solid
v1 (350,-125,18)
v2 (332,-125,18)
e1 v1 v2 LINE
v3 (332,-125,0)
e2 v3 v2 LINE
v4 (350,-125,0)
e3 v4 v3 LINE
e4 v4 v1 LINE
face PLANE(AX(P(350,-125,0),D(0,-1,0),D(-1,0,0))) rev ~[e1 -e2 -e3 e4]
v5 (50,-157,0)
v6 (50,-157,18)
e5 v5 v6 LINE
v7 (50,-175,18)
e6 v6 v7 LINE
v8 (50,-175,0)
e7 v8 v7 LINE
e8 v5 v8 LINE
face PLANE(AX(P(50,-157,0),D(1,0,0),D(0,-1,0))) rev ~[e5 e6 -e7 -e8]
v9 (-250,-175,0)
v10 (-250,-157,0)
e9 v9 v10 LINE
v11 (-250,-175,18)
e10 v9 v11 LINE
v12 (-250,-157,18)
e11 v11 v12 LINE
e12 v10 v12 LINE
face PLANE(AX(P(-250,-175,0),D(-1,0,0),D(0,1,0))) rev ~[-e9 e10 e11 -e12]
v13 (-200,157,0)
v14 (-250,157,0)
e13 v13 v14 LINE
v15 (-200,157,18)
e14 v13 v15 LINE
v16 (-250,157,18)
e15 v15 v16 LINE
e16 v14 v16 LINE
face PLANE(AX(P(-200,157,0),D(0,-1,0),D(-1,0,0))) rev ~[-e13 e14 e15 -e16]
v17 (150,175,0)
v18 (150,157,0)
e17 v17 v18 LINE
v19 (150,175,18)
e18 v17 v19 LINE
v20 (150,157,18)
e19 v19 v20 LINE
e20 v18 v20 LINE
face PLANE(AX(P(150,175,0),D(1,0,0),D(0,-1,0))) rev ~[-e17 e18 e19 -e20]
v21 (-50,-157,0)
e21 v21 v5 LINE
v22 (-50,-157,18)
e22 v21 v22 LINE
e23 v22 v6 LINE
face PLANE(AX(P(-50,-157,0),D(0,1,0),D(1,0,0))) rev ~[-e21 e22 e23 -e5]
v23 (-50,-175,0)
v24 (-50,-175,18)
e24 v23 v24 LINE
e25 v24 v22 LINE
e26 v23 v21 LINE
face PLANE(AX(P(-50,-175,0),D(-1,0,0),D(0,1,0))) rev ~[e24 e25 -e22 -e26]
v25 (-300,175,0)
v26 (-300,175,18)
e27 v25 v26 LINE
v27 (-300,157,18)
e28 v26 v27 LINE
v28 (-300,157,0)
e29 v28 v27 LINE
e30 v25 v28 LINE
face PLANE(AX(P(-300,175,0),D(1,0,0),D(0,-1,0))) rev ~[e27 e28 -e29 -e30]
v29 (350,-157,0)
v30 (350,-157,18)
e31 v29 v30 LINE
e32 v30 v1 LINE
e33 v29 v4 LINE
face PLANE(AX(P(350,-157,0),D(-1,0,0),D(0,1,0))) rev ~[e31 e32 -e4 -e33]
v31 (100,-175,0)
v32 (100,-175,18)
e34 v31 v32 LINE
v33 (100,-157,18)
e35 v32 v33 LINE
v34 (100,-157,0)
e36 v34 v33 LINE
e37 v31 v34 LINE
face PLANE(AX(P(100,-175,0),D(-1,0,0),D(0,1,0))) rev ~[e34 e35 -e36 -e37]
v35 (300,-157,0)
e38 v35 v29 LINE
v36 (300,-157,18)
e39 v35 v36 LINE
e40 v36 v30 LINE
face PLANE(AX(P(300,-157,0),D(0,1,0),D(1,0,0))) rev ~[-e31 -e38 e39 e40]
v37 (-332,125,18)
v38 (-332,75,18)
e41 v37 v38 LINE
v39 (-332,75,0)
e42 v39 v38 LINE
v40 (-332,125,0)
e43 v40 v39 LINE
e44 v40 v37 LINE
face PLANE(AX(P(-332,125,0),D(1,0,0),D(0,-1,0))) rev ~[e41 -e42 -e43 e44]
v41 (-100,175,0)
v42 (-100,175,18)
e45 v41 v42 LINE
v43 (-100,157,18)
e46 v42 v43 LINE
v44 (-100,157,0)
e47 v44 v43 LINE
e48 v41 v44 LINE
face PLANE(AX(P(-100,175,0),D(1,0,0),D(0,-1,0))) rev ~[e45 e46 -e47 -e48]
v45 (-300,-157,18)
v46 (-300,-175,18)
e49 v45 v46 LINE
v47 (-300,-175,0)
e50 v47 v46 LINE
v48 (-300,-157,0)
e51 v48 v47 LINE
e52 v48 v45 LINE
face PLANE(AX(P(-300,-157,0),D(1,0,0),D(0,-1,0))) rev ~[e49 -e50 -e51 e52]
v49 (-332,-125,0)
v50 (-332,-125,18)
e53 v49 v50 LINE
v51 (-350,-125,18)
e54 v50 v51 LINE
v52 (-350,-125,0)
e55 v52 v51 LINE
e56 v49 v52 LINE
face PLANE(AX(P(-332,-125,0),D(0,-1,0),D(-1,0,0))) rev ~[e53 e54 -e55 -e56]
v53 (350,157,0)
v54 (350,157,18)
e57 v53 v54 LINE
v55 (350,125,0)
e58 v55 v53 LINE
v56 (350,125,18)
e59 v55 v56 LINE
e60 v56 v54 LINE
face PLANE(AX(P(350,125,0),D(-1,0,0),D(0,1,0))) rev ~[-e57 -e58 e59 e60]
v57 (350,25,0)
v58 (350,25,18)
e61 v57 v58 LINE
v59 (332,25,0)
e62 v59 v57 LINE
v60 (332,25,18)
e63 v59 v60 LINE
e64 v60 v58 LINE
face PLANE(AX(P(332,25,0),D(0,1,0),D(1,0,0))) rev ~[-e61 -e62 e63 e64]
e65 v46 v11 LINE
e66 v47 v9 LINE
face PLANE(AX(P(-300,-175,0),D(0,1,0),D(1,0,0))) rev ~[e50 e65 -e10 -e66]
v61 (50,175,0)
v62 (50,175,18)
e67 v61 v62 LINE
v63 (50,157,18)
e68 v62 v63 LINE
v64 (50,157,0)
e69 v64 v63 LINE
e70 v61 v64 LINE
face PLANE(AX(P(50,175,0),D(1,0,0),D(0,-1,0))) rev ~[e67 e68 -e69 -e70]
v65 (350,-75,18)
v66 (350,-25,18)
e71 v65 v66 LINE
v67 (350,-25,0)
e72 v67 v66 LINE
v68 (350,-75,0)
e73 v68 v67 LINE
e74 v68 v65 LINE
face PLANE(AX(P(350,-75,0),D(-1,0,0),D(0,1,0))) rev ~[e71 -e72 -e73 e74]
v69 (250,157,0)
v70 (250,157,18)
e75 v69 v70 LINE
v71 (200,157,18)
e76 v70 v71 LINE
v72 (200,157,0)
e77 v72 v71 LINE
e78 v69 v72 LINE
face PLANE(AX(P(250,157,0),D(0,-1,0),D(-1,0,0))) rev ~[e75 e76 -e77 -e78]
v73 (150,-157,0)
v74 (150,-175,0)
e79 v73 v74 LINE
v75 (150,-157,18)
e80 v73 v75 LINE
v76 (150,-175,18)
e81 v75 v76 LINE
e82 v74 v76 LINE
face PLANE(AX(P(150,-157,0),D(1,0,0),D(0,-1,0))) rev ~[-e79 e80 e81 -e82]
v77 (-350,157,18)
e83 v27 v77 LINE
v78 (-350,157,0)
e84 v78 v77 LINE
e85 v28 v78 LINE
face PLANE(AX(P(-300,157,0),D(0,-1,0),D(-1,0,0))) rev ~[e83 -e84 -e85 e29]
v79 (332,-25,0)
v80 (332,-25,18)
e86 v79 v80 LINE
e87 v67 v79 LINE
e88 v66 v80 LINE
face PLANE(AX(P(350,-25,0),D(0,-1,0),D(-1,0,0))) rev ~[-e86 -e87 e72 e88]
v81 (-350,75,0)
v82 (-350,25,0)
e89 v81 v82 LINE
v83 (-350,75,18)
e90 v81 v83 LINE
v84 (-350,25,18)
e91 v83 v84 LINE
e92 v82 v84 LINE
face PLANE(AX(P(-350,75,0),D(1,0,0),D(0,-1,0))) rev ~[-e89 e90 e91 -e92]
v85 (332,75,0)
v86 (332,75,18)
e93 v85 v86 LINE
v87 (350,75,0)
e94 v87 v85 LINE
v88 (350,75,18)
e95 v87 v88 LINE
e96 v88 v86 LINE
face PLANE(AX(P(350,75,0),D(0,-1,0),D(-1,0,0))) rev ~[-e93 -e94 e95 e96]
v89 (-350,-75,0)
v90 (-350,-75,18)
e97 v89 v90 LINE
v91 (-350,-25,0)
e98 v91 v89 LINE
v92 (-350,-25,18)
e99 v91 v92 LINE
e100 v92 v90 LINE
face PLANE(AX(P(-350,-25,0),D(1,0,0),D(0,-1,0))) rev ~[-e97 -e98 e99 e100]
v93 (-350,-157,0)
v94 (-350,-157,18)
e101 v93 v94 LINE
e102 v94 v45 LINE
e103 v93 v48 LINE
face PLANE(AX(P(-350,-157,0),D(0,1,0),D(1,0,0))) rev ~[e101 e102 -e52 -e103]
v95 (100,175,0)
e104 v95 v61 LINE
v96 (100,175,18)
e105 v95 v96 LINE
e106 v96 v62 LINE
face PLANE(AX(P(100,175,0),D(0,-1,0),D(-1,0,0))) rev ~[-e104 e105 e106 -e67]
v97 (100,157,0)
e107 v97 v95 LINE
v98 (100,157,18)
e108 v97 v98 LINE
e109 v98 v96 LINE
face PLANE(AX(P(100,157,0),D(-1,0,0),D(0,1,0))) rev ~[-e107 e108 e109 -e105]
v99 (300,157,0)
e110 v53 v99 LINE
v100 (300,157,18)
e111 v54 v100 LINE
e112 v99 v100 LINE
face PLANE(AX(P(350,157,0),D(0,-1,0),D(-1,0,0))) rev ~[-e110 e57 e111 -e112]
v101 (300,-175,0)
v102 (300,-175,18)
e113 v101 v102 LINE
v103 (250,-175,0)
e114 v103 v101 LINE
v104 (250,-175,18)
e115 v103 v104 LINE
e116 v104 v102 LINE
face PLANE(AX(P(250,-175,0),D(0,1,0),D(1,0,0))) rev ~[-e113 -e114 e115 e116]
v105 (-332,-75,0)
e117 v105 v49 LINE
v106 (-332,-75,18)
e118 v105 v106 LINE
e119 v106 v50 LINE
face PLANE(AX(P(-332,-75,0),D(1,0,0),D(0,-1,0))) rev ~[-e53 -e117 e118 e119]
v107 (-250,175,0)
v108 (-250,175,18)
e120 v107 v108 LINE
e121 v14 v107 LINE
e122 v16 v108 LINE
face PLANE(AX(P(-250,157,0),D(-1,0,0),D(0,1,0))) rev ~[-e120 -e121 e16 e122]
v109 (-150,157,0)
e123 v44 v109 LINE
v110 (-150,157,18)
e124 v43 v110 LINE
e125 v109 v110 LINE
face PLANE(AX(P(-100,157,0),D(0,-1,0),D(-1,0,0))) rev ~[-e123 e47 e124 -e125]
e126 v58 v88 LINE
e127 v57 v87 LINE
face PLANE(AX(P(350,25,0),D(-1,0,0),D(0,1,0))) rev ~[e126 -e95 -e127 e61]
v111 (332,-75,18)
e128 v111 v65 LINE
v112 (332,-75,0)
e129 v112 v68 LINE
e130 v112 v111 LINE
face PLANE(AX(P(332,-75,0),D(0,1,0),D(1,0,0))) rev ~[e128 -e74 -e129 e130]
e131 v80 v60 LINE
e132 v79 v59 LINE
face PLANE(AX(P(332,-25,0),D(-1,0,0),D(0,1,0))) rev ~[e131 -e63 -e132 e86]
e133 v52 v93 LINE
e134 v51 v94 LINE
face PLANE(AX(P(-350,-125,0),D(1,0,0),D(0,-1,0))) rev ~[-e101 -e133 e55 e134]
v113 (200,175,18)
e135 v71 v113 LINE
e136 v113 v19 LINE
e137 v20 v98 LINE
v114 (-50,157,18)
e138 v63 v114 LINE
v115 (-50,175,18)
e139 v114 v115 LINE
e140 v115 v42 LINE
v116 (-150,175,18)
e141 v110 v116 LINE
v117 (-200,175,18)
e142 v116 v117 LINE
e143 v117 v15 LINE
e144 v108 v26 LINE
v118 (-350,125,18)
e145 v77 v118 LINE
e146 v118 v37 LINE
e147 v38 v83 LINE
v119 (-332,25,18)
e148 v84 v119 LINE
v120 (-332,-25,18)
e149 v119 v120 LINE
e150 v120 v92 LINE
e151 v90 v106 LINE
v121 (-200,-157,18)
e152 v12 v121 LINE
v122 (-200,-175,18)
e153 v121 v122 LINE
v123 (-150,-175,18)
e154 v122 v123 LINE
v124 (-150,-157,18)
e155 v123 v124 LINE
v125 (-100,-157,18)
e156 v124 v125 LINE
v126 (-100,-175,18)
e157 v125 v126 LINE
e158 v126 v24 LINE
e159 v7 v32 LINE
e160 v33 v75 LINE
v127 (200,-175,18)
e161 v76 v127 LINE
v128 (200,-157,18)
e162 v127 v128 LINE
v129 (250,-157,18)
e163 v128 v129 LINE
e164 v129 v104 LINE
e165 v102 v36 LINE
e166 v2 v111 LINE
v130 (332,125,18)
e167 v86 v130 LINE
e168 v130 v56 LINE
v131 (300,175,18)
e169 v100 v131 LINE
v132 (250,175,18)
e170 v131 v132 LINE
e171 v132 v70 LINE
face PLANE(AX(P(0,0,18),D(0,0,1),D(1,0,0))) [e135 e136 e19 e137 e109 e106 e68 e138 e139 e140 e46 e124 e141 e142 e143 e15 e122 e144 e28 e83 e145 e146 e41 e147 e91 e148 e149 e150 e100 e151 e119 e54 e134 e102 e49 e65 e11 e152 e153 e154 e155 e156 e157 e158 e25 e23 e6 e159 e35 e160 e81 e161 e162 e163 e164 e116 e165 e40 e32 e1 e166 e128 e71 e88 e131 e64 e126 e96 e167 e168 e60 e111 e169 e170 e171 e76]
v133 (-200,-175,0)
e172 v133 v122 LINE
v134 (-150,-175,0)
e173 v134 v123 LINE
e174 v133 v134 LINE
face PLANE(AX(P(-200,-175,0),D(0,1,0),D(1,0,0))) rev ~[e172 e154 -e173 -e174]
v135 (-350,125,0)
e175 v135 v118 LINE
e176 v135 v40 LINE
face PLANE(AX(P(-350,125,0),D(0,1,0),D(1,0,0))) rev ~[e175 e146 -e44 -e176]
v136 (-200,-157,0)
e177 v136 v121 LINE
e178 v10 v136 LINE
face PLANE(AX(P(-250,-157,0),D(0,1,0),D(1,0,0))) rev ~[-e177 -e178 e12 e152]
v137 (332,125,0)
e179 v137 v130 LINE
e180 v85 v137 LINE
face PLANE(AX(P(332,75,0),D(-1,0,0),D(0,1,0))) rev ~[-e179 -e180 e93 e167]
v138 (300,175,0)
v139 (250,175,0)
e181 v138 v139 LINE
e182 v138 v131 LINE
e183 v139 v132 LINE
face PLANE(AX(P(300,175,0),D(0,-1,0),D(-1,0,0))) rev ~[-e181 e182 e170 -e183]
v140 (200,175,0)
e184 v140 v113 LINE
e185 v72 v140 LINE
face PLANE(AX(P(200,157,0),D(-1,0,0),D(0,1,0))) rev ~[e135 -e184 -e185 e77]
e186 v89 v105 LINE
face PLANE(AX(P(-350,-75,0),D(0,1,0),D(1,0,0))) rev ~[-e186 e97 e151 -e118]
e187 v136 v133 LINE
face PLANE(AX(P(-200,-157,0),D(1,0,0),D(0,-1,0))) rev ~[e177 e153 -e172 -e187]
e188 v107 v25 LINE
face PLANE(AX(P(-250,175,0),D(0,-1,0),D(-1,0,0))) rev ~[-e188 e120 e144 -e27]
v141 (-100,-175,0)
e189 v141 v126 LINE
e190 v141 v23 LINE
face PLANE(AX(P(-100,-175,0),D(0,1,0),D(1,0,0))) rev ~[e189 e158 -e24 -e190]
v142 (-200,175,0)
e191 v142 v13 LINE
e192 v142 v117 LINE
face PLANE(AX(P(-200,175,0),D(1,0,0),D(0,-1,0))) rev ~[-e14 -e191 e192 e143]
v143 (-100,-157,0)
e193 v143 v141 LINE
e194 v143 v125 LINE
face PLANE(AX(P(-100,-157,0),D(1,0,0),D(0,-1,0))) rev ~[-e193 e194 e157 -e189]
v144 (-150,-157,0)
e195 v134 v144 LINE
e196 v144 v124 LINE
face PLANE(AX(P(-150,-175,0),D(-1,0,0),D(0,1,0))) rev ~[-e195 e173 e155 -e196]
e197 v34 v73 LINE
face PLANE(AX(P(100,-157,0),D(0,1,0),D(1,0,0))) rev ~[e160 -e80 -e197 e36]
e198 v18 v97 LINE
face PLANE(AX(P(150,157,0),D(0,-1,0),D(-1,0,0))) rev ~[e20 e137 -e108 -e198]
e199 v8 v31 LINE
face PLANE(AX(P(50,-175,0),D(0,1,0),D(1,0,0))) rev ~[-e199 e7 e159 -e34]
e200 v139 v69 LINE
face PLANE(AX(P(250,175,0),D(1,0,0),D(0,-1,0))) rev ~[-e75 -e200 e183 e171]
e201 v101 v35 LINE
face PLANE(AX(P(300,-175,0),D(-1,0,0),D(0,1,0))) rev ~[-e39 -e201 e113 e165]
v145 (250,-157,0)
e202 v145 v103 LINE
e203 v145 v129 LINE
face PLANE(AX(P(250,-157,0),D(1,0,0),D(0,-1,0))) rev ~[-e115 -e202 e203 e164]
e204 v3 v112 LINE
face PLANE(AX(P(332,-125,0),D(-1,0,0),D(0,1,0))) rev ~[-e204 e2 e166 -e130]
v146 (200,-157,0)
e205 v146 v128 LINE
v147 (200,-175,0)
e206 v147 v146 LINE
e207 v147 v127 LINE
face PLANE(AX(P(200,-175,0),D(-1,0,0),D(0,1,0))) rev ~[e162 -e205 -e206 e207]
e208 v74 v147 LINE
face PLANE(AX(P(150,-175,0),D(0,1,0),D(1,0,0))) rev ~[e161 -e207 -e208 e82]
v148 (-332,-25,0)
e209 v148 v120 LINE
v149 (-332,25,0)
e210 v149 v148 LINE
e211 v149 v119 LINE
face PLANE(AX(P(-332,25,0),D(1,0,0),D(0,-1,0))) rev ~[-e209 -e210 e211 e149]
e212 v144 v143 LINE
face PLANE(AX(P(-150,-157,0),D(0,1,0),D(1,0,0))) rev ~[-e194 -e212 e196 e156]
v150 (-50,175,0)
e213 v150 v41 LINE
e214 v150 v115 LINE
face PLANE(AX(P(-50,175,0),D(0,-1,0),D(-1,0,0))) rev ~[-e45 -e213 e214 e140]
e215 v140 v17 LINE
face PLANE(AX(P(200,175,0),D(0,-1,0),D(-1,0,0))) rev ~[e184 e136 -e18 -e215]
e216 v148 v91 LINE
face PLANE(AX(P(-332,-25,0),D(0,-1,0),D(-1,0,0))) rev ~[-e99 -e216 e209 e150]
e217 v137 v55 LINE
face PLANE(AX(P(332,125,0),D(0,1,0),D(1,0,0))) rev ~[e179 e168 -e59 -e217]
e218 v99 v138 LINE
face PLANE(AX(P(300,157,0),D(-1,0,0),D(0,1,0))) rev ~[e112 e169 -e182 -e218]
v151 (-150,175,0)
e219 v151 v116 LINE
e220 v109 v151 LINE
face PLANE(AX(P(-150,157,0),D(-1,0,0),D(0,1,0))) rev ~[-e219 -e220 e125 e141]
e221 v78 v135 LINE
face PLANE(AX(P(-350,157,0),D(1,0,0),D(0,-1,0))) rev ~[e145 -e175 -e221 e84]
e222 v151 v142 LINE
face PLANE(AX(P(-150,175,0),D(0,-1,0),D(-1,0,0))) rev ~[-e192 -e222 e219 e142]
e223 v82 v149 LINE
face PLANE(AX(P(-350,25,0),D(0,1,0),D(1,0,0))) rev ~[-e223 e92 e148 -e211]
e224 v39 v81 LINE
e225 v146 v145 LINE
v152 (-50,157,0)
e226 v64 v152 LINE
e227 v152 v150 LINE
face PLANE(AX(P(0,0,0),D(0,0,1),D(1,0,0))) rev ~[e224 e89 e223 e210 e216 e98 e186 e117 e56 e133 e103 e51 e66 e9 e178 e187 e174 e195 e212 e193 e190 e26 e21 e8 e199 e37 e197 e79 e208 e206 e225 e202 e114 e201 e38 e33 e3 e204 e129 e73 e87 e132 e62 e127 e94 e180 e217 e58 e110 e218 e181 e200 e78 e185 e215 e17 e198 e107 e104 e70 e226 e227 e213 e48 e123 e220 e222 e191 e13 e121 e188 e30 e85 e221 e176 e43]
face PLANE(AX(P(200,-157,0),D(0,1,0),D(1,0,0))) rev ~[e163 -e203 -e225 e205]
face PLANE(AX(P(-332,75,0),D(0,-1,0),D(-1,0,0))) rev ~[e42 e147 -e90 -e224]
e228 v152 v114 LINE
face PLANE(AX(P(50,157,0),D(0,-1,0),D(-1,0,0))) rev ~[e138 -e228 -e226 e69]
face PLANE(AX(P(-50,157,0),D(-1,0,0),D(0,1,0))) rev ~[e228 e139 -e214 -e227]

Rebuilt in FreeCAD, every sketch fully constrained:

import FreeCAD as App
import Part
import Sketcher


def add_polygon(sketch, points):
    """Adds a closed chain of lines whose ends are joined by coincident constraints."""
    first, n = sketch.GeometryCount, len(points)
    for a, b in zip(points, points[1:] + points[:1]):
        sketch.addGeometry(Part.LineSegment(App.Vector(*a, 0), App.Vector(*b, 0)), False)
    for i in range(n):
        sketch.addConstraint(Sketcher.Constraint("Coincident", first + i, 2, first + (i + 1) % n, 1))

doc = App.newDocument("Part")
body = doc.addObject("PartDesign::Body", "Body")

sketch1 = doc.addObject("Sketcher::SketchObject", "Sketch")
body.addObject(sketch1)
sketch1.AttachmentSupport = (doc.XY_Plane, [""])
sketch1.MapMode = "FlatFace"
add_polygon(sketch1, [(-350, -125), (-350, -157), (-300, -157), (-300, -175), (-250, -175), (-250, -157), (-200, -157), (-200, -175), (-150, -175), (-150, -157), (-100, -157), (-100, -175), (-50, -175), (-50, -157), (50, -157), (50, -175), (100, -175), (100, -157), (150, -157), (150, -175), (200, -175), (200, -157), (250, -157), (250, -175), (300, -175), (300, -157), (350, -157), (350, -125), (332, -125), (332, -75), (350, -75), (350, -25), (332, -25), (332, 25), (350, 25), (350, 75), (332, 75), (332, 125), (350, 125), (350, 157), (300, 157), (300, 175), (250, 175), (250, 157), (200, 157), (200, 175), (150, 175), (150, 157), (100, 157), (100, 175), (50, 175), (50, 157), (-50, 157), (-50, 175), (-100, 175), (-100, 157), (-150, 157), (-150, 175), (-200, 175), (-200, 157), (-250, 157), (-250, 175), (-300, 175), (-300, 157), (-350, 157), (-350, 125), (-332, 125), (-332, 75), (-350, 75), (-350, 25), (-332, 25), (-332, -25), (-350, -25), (-350, -75), (-332, -75), (-332, -125)])
sketch1.addConstraint([
    Sketcher.Constraint("Vertical", 0),
    Sketcher.Constraint("Horizontal", 1),
    Sketcher.Constraint("Vertical", 2),
    Sketcher.Constraint("Horizontal", 3),
    Sketcher.Constraint("Vertical", 4),
    Sketcher.Constraint("Horizontal", 5),
    Sketcher.Constraint("Vertical", 6),
    Sketcher.Constraint("Horizontal", 7),
    Sketcher.Constraint("Vertical", 8),
    Sketcher.Constraint("Horizontal", 9),
    Sketcher.Constraint("Vertical", 10),
    Sketcher.Constraint("Horizontal", 11),
    Sketcher.Constraint("Vertical", 12),
    Sketcher.Constraint("Horizontal", 13),
    Sketcher.Constraint("Vertical", 14),
    Sketcher.Constraint("Horizontal", 15),
    Sketcher.Constraint("Vertical", 16),
    Sketcher.Constraint("Horizontal", 17),
    Sketcher.Constraint("Vertical", 18),
    Sketcher.Constraint("Horizontal", 19),
    Sketcher.Constraint("Vertical", 20),
    Sketcher.Constraint("Horizontal", 21),
    Sketcher.Constraint("Vertical", 22),
    Sketcher.Constraint("Horizontal", 23),
    Sketcher.Constraint("Vertical", 24),
    Sketcher.Constraint("Horizontal", 25),
    Sketcher.Constraint("Vertical", 26),
    Sketcher.Constraint("Horizontal", 27),
    Sketcher.Constraint("Vertical", 28),
    Sketcher.Constraint("Horizontal", 29),
    Sketcher.Constraint("Vertical", 30),
    Sketcher.Constraint("Horizontal", 31),
    Sketcher.Constraint("Vertical", 32),
    Sketcher.Constraint("Horizontal", 33),
    Sketcher.Constraint("Vertical", 34),
    Sketcher.Constraint("Horizontal", 35),
    Sketcher.Constraint("Vertical", 36),
    Sketcher.Constraint("Horizontal", 37),
    Sketcher.Constraint("Vertical", 38),
    Sketcher.Constraint("Horizontal", 39),
    Sketcher.Constraint("Vertical", 40),
    Sketcher.Constraint("Horizontal", 41),
    Sketcher.Constraint("Vertical", 42),
    Sketcher.Constraint("Horizontal", 43),
    Sketcher.Constraint("Vertical", 44),
    Sketcher.Constraint("Horizontal", 45),
    Sketcher.Constraint("Vertical", 46),
    Sketcher.Constraint("Horizontal", 47),
    Sketcher.Constraint("Vertical", 48),
    Sketcher.Constraint("Horizontal", 49),
    Sketcher.Constraint("Vertical", 50),
    Sketcher.Constraint("Horizontal", 51),
    Sketcher.Constraint("Vertical", 52),
    Sketcher.Constraint("Horizontal", 53),
    Sketcher.Constraint("Vertical", 54),
    Sketcher.Constraint("Horizontal", 55),
    Sketcher.Constraint("Vertical", 56),
    Sketcher.Constraint("Horizontal", 57),
    Sketcher.Constraint("Vertical", 58),
    Sketcher.Constraint("Horizontal", 59),
    Sketcher.Constraint("Vertical", 60),
    Sketcher.Constraint("Horizontal", 61),
    Sketcher.Constraint("Vertical", 62),
    Sketcher.Constraint("Horizontal", 63),
    Sketcher.Constraint("Vertical", 64),
    Sketcher.Constraint("Horizontal", 65),
    Sketcher.Constraint("Vertical", 66),
    Sketcher.Constraint("Horizontal", 67),
    Sketcher.Constraint("Vertical", 68),
    Sketcher.Constraint("Horizontal", 69),
    Sketcher.Constraint("Vertical", 70),
    Sketcher.Constraint("Horizontal", 71),
    Sketcher.Constraint("Vertical", 72),
    Sketcher.Constraint("Horizontal", 73),
    Sketcher.Constraint("Vertical", 74),
    Sketcher.Constraint("Horizontal", 75),
    Sketcher.Constraint("Symmetric", 0, 2, 38, 2, -1, 1),
    Sketcher.Constraint("Symmetric", 2, 2, 40, 2, -1, 1),
    Sketcher.Constraint("Symmetric", 4, 2, 42, 2, -1, 1),
    Sketcher.Constraint("Symmetric", 6, 2, 44, 2, -1, 1),
    Sketcher.Constraint("Symmetric", 8, 2, 46, 2, -1, 1),
    Sketcher.Constraint("Symmetric", 10, 2, 48, 2, -1, 1),
    Sketcher.Constraint("Symmetric", 12, 2, 50, 2, -1, 1),
    Sketcher.Constraint("Symmetric", 14, 2, 52, 2, -1, 1),
    Sketcher.Constraint("Symmetric", 16, 2, 54, 2, -1, 1),
    Sketcher.Constraint("Symmetric", 18, 2, 56, 2, -1, 1),
    Sketcher.Constraint("Symmetric", 20, 2, 58, 2, -1, 1),
    Sketcher.Constraint("Symmetric", 22, 2, 60, 2, -1, 1),
    Sketcher.Constraint("Symmetric", 24, 2, 62, 2, -1, 1),
    Sketcher.Constraint("Symmetric", 26, 2, 64, 2, -1, 1),
    Sketcher.Constraint("Symmetric", 28, 2, 66, 2, -1, 1),
    Sketcher.Constraint("Symmetric", 30, 2, 68, 2, -1, 1),
    Sketcher.Constraint("Symmetric", 32, 2, 70, 2, -1, 1),
    Sketcher.Constraint("Symmetric", 34, 2, 72, 2, -1, 1),
    Sketcher.Constraint("Symmetric", 36, 2, 74, 2, -1, 1),
    Sketcher.Constraint("Symmetric", 11, 2, 14, 2, -2),
    Sketcher.Constraint("Symmetric", 9, 2, 16, 2, -2),
    Sketcher.Constraint("Symmetric", 7, 2, 18, 2, -2),
    Sketcher.Constraint("Symmetric", 5, 2, 20, 2, -2),
    Sketcher.Constraint("Symmetric", 3, 2, 22, 2, -2),
    Sketcher.Constraint("Symmetric", 1, 2, 24, 2, -2),
    Sketcher.Constraint("Symmetric", 37, 2, 64, 2, -2),
    Sketcher.Constraint("Symmetric", 35, 2, 66, 2, -2),
    Sketcher.Constraint("Symmetric", 33, 2, 68, 2, -2),
    Sketcher.Constraint("Horizontal", 1, 2, 4, 2),
    Sketcher.Constraint("Horizontal", 3, 2, 6, 2),
    Sketcher.Constraint("Horizontal", 5, 2, 8, 2),
    Sketcher.Constraint("Horizontal", 7, 2, 10, 2),
    Sketcher.Constraint("Horizontal", 9, 2, 12, 2),
    Sketcher.Constraint("Vertical", 26, 2, 29, 2),
    Sketcher.Constraint("Vertical", 28, 2, 31, 2),
    Sketcher.Constraint("Equal", 1, 3),
    Sketcher.Constraint("Equal", 3, 5),
    Sketcher.Constraint("Equal", 5, 7),
    Sketcher.Constraint("Equal", 7, 9),
    Sketcher.Constraint("Equal", 9, 11),
    Sketcher.Constraint("Equal", 75, 2),
    Sketcher.Constraint("Equal", 63, 28),
    Sketcher.Constraint("Equal", 28, 30),
    Sketcher.Constraint("Equal", 30, 32),
    Sketcher.Constraint("DistanceX", 1, 1, 1, 2, 50.0),
    Sketcher.Constraint("DistanceX", 13, 1, 13, 2, 100.0),
    Sketcher.Constraint("DistanceX", 27, 2, 27, 1, 18.0),
    Sketcher.Constraint("DistanceY", 0, 2, 0, 1, 32.0),
])
pad1 = doc.addObject("PartDesign::Pad", "Pad")
body.addObject(pad1)
pad1.Profile = sketch1
pad1.Length = 18

doc.recompute()
